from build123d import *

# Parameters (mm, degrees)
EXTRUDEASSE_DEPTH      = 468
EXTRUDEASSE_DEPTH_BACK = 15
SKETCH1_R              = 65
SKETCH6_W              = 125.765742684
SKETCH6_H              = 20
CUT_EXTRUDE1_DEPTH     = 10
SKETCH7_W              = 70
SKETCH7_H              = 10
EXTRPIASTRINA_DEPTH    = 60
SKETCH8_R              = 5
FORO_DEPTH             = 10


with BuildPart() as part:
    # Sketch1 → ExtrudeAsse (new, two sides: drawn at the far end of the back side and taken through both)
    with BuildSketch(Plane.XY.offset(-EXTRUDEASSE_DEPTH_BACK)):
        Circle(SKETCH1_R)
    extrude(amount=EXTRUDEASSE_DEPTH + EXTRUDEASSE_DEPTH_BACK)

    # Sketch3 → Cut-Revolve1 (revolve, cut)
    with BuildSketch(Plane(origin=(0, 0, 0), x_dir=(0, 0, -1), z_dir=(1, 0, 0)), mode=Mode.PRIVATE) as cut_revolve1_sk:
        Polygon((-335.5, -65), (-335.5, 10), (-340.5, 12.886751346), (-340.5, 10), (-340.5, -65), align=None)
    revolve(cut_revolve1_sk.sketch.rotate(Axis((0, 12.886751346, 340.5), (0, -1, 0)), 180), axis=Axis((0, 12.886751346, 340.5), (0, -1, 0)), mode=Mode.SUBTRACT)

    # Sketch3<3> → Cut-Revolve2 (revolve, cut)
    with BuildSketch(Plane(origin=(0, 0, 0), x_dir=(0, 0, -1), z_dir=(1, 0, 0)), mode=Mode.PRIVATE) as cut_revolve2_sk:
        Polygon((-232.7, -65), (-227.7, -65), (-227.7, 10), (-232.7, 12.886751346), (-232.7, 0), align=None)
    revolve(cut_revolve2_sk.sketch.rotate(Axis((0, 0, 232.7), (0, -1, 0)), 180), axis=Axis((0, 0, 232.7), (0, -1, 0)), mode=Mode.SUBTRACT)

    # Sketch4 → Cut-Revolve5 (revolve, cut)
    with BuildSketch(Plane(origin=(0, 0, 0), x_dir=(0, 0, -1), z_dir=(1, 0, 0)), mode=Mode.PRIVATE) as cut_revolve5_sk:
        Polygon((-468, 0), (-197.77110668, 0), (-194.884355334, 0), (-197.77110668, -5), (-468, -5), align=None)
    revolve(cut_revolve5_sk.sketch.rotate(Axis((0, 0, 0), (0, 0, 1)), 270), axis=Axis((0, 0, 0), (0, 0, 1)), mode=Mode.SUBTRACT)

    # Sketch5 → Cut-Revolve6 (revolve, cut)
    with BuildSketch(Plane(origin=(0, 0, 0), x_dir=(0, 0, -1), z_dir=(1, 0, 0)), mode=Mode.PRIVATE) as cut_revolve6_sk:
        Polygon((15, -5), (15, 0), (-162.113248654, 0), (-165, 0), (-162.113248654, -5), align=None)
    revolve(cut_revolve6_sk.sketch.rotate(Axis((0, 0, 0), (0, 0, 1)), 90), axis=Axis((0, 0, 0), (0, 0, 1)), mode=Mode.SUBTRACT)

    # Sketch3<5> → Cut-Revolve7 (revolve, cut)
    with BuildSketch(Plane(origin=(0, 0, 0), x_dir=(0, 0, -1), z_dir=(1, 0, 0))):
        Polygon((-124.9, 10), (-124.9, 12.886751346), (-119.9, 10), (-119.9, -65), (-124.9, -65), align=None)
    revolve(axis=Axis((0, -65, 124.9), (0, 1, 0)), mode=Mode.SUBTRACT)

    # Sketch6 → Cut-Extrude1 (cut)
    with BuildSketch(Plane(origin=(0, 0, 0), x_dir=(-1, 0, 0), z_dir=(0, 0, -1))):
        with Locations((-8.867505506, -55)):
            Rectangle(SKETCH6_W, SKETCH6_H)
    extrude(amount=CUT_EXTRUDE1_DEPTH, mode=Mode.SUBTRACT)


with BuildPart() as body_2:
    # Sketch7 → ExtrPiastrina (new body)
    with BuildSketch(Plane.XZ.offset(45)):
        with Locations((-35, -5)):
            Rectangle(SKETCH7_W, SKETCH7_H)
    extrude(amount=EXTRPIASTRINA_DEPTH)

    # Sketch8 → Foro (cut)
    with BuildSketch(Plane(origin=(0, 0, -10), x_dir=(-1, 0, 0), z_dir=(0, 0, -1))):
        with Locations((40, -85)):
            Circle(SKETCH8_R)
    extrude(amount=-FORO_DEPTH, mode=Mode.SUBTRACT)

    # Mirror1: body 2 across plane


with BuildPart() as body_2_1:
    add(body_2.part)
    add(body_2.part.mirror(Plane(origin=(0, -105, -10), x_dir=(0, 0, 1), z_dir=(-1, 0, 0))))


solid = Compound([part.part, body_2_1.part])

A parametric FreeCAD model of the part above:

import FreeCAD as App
import Part
import Sketcher
from FreeCAD import Vector
Q = App.Units.Quantity

doc = App.newDocument("Part")
body = doc.addObject("PartDesign::Body", "Body")

# Sketch on XY plane
sketch1 = doc.addObject("Sketcher::SketchObject", "Sketch")
body.addObject(sketch1)
sketch1.AttachmentSupport = (doc.XY_Plane, [""])
sketch1.MapMode = "FlatFace"
sketch1.addGeometry(Part.Circle(Vector(0, 0, 0), Vector(0, 0, 1), 65), False)
sketch1.addConstraint([
    Sketcher.Constraint("Coincident", 0, 3, -1, 1),
    Sketcher.Constraint("Diameter", 0, Q("130 mm")),
])
pad1 = doc.addObject("PartDesign::Pad", "Pad")
body.addObject(pad1)
pad1.Profile = sketch1
pad1.Type = "TwoLengths"
pad1.Length = 468
pad1.Length2 = 15

# Sketch on YZ plane
sketch2 = doc.addObject("Sketcher::SketchObject", "Sketch001")
body.addObject(sketch2)
sketch2.AttachmentSupport = (doc.YZ_Plane, [""])
sketch2.MapMode = "FlatFace"
sketch2.addGeometry([
    Part.LineSegment(Vector(-65, 336, 0), Vector(10, 336, 0)),
    Part.LineSegment(Vector(10, 336, 0), Vector(13, 340, 0)),
    Part.LineSegment(Vector(13, 340, 0), Vector(-65, 340, 0)),
    Part.LineSegment(Vector(-65, 340, 0), Vector(-65, 336, 0)),
], False)
sketch2.addGeometry(Part.LineSegment(Vector(13, 340, 0), Vector(-65, 340, 0)), True)  # axis
sketch2.addConstraint([
    Sketcher.Constraint("Coincident", 0, 2, 1, 1),
    Sketcher.Constraint("Coincident", 1, 2, 2, 1),
    Sketcher.Constraint("Coincident", 2, 2, 3, 1),
    Sketcher.Constraint("Coincident", 3, 2, 0, 1),
    Sketcher.Constraint("Horizontal", 0),
    Sketcher.Constraint("Horizontal", 2),
    Sketcher.Constraint("Vertical", 3),
    Sketcher.Constraint("Horizontal", 4),
    Sketcher.Constraint("Coincident", 4, 1, 1, 2),
    Sketcher.Constraint("Vertical", 3, 2, 4, 2),
    Sketcher.Constraint("DistanceX", 0, 1, 0, 2, Q("75 mm")),
    Sketcher.Constraint("DistanceY", 3, 2, 3, 1, Q("5 mm")),
    Sketcher.Constraint("Angle", 1, Q("60 deg")),
    Sketcher.Constraint("DistanceX", -1, 1, 0, 2, Q("10 mm")),
    Sketcher.Constraint("DistanceY", -1, 1, 0, 2, Q("335.5 mm")),
])
groove = doc.addObject("PartDesign::Groove", "Groove")
body.addObject(groove)
groove.Profile = sketch2
groove.ReferenceAxis = (sketch2, ["Axis0"])
groove.Angle = 360

# Sketch on YZ plane
sketch3 = doc.addObject("Sketcher::SketchObject", "Sketch002")
body.addObject(sketch3)
sketch3.AttachmentSupport = (doc.YZ_Plane, [""])
sketch3.MapMode = "FlatFace"
sketch3.addGeometry([
    Part.LineSegment(Vector(-65, 233, 0), Vector(-65, 228, 0)),
    Part.LineSegment(Vector(-65, 228, 0), Vector(10, 228, 0)),
    Part.LineSegment(Vector(10, 228, 0), Vector(13, 233, 0)),
    Part.LineSegment(Vector(13, 233, 0), Vector(-65, 233, 0)),
], False)
sketch3.addGeometry(Part.LineSegment(Vector(13, 233, 0), Vector(-65, 233, 0)), True)  # axis
sketch3.addConstraint([
    Sketcher.Constraint("Coincident", 0, 2, 1, 1),
    Sketcher.Constraint("Coincident", 1, 2, 2, 1),
    Sketcher.Constraint("Coincident", 2, 2, 3, 1),
    Sketcher.Constraint("Coincident", 3, 2, 0, 1),
    Sketcher.Constraint("Vertical", 0),
    Sketcher.Constraint("Horizontal", 1),
    Sketcher.Constraint("Horizontal", 3),
    Sketcher.Constraint("Horizontal", 4),
    Sketcher.Constraint("Coincident", 4, 1, 2, 2),
    Sketcher.Constraint("Vertical", 0, 2, 4, 2),
    Sketcher.Constraint("DistanceX", 1, 1, 1, 2, Q("75 mm")),
    Sketcher.Constraint("DistanceY", 0, 2, 0, 1, Q("5 mm")),
    Sketcher.Constraint("Angle", 2, Q("60 deg")),
    Sketcher.Constraint("DistanceX", 0, 2, -1, 1, Q("65 mm")),
    Sketcher.Constraint("DistanceY", -1, 1, 0, 2, Q("227.7 mm")),
])
groove2 = doc.addObject("PartDesign::Groove", "Groove001")
body.addObject(groove2)
groove2.Profile = sketch3
groove2.ReferenceAxis = (sketch3, ["Axis0"])
groove2.Angle = 360

# Sketch on YZ plane
sketch4 = doc.addObject("Sketcher::SketchObject", "Sketch003")
body.addObject(sketch4)
sketch4.AttachmentSupport = (doc.YZ_Plane, [""])
sketch4.MapMode = "FlatFace"
sketch4.addGeometry([
    Part.LineSegment(Vector(0, 195, 0), Vector(0, 468, 0)),
    Part.LineSegment(Vector(0, 468, 0), Vector(-5, 468, 0)),
    Part.LineSegment(Vector(-5, 468, 0), Vector(-5, 198, 0)),
    Part.LineSegment(Vector(-5, 198, 0), Vector(0, 195, 0)),
], False)
sketch4.addConstraint([
    Sketcher.Constraint("Coincident", 0, 2, 1, 1),
    Sketcher.Constraint("Coincident", 1, 2, 2, 1),
    Sketcher.Constraint("Coincident", 2, 2, 3, 1),
    Sketcher.Constraint("Coincident", 3, 2, 0, 1),
    Sketcher.Constraint("Vertical", 0),
    Sketcher.Constraint("Horizontal", 1),
    Sketcher.Constraint("Vertical", 2),
    Sketcher.Constraint("PointOnObject", 0, 2, -2),
    Sketcher.Constraint("DistanceX", 1, 2, 1, 1, Q("5 mm")),
    Sketcher.Constraint("Angle", 3, Q("-30 deg")),
    Sketcher.Constraint("DistanceY", -1, 1, 0, 2, Q("468 mm")),
    Sketcher.Constraint("DistanceY", 0, 1, 0, 2, Q("273.115645 mm")),
])
groove3 = doc.addObject("PartDesign::Groove", "Groove002")
body.addObject(groove3)
groove3.Profile = sketch4
groove3.ReferenceAxis = (sketch4, ["V_Axis"])
groove3.Angle = 360

# Sketch on YZ plane
sketch5 = doc.addObject("Sketcher::SketchObject", "Sketch004")
body.addObject(sketch5)
sketch5.AttachmentSupport = (doc.YZ_Plane, [""])
sketch5.MapMode = "FlatFace"
sketch5.addGeometry([
    Part.LineSegment(Vector(-5, -15, 0), Vector(0, -15, 0)),
    Part.LineSegment(Vector(0, -15, 0), Vector(0, 165, 0)),
    Part.LineSegment(Vector(0, 165, 0), Vector(-5, 162, 0)),
    Part.LineSegment(Vector(-5, 162, 0), Vector(-5, -15, 0)),
], False)
sketch5.addConstraint([
    Sketcher.Constraint("Coincident", 0, 2, 1, 1),
    Sketcher.Constraint("Coincident", 1, 2, 2, 1),
    Sketcher.Constraint("Coincident", 2, 2, 3, 1),
    Sketcher.Constraint("Coincident", 3, 2, 0, 1),
    Sketcher.Constraint("Horizontal", 0),
    Sketcher.Constraint("Vertical", 1),
    Sketcher.Constraint("Vertical", 3),
    Sketcher.Constraint("PointOnObject", 0, 2, -2),
    Sketcher.Constraint("DistanceX", 0, 1, 0, 2, Q("5 mm")),
    Sketcher.Constraint("DistanceY", 1, 1, 1, 2, Q("180 mm")),
    Sketcher.Constraint("Angle", 2, Q("-150 deg")),
    Sketcher.Constraint("DistanceY", 0, 2, -1, 1, Q("15 mm")),
])
groove4 = doc.addObject("PartDesign::Groove", "Groove003")
body.addObject(groove4)
groove4.Profile = sketch5
groove4.ReferenceAxis = (sketch5, ["V_Axis"])
groove4.Angle = 360

# Sketch on YZ plane
sketch6 = doc.addObject("Sketcher::SketchObject", "Sketch005")
body.addObject(sketch6)
sketch6.AttachmentSupport = (doc.YZ_Plane, [""])
sketch6.MapMode = "FlatFace"
sketch6.addGeometry([
    Part.LineSegment(Vector(13, 125, 0), Vector(-65, 125, 0)),
    Part.LineSegment(Vector(-65, 125, 0), Vector(-65, 120, 0)),
    Part.LineSegment(Vector(-65, 120, 0), Vector(10, 120, 0)),
    Part.LineSegment(Vector(10, 120, 0), Vector(13, 125, 0)),
], False)
sketch6.addGeometry(Part.LineSegment(Vector(-65, 125, 0), Vector(13, 125, 0)), True)  # axis
sketch6.addConstraint([
    Sketcher.Constraint("Coincident", 0, 2, 1, 1),
    Sketcher.Constraint("Coincident", 1, 2, 2, 1),
    Sketcher.Constraint("Coincident", 2, 2, 3, 1),
    Sketcher.Constraint("Coincident", 3, 2, 0, 1),
    Sketcher.Constraint("Horizontal", 0),
    Sketcher.Constraint("Vertical", 1),
    Sketcher.Constraint("Horizontal", 2),
    Sketcher.Constraint("Horizontal", 4),
    Sketcher.Constraint("Coincident", 4, 1, 0, 2),
    Sketcher.Constraint("Equal", 0, 4),
    Sketcher.Constraint("DistanceX", 2, 1, 2, 2, Q("75 mm")),
    Sketcher.Constraint("DistanceY", 1, 2, 1, 1, Q("5 mm")),
    Sketcher.Constraint("Angle", 3, Q("60 deg")),
    Sketcher.Constraint("DistanceX", 0, 2, -1, 1, Q("65 mm")),
    Sketcher.Constraint("DistanceY", -1, 1, 0, 2, Q("124.9 mm")),
])
groove5 = doc.addObject("PartDesign::Groove", "Groove004")
body.addObject(groove5)
groove5.Profile = sketch6
groove5.ReferenceAxis = (sketch6, ["Axis0"])
groove5.Angle = 360

# Sketch on XY plane
sketch7 = doc.addObject("Sketcher::SketchObject", "Sketch006")
body.addObject(sketch7)
sketch7.AttachmentSupport = (doc.XY_Plane, [""])
sketch7.MapMode = "FlatFace"
sketch7.addGeometry([
    Part.LineSegment(Vector(72, -45, 0), Vector(72, -65, 0)),
    Part.LineSegment(Vector(72, -65, 0), Vector(-54, -65, 0)),
    Part.LineSegment(Vector(-54, -65, 0), Vector(-54, -45, 0)),
    Part.LineSegment(Vector(-54, -45, 0), Vector(72, -45, 0)),
], False)
sketch7.addConstraint([
    Sketcher.Constraint("Coincident", 0, 2, 1, 1),
    Sketcher.Constraint("Coincident", 1, 2, 2, 1),
    Sketcher.Constraint("Coincident", 2, 2, 3, 1),
    Sketcher.Constraint("Coincident", 3, 2, 0, 1),
    Sketcher.Constraint("Vertical", 0),
    Sketcher.Constraint("Horizontal", 1),
    Sketcher.Constraint("Vertical", 2),
    Sketcher.Constraint("Horizontal", 3),
    Sketcher.Constraint("DistanceY", 0, 2, 0, 1, Q("20 mm")),
    Sketcher.Constraint("DistanceY", 0, 2, -1, 1, Q("65 mm")),
    Sketcher.Constraint("DistanceX", 1, 2, 1, 1, Q("125.765743 mm")),
    Sketcher.Constraint("DistanceX", -1, 1, 0, 2, Q("71.750377 mm")),
])
pocket1 = doc.addObject("PartDesign::Pocket", "Pocket")
body.addObject(pocket1)
pocket1.Profile = sketch7
pocket1.Length = 10
body2 = doc.addObject("PartDesign::Body", "Body001")

# Sketch on XZ plane
sketch8 = doc.addObject("Sketcher::SketchObject", "Sketch007")
body2.addObject(sketch8)
sketch8.AttachmentSupport = (doc.getObject("XZ_Plane001"), [""])
sketch8.MapMode = "FlatFace"
sketch8.AttachmentOffset = App.Placement(Vector(0, 0, 45), App.Rotation())
sketch8.addGeometry([
    Part.LineSegment(Vector(-70, 0, 0), Vector(-70, -10, 0)),
    Part.LineSegment(Vector(-70, -10, 0), Vector(0, -10, 0)),
    Part.LineSegment(Vector(0, -10, 0), Vector(0, 0, 0)),
    Part.LineSegment(Vector(0, 0, 0), Vector(-70, 0, 0)),
], False)
sketch8.addConstraint([
    Sketcher.Constraint("Coincident", 0, 2, 1, 1),
    Sketcher.Constraint("Coincident", 1, 2, 2, 1),
    Sketcher.Constraint("Coincident", 2, 2, 3, 1),
    Sketcher.Constraint("Coincident", 3, 2, 0, 1),
    Sketcher.Constraint("Vertical", 0),
    Sketcher.Constraint("Horizontal", 1),
    Sketcher.Constraint("Vertical", 2),
    Sketcher.Constraint("Horizontal", 3),
    Sketcher.Constraint("Coincident", 2, 2, -1, 1),
    Sketcher.Constraint("DistanceX", 1, 1, 1, 2, Q("70 mm")),
    Sketcher.Constraint("DistanceY", 0, 2, 0, 1, Q("10 mm")),
])
pad2 = doc.addObject("PartDesign::Pad", "Pad001")
body2.addObject(pad2)
pad2.Profile = sketch8
pad2.Length = 60

# Sketch on XY plane
sketch9 = doc.addObject("Sketcher::SketchObject", "Sketch008")
body2.addObject(sketch9)
sketch9.AttachmentSupport = (doc.getObject("XY_Plane001"), [""])
sketch9.MapMode = "FlatFace"
sketch9.AttachmentOffset = App.Placement(Vector(0, 0, -10), App.Rotation())
sketch9.addGeometry(Part.Circle(Vector(-40, -85, 0), Vector(0, 0, 1), 5), False)
sketch9.addConstraint([
    Sketcher.Constraint("Diameter", 0, Q("10 mm")),
    Sketcher.Constraint("DistanceX", 0, 3, -1, 1, Q("40 mm")),
    Sketcher.Constraint("DistanceY", 0, 3, -1, 1, Q("85 mm")),
])
pocket2 = doc.addObject("PartDesign::Pocket", "Pocket001")
body2.addObject(pocket2)
pocket2.Profile = sketch9
pocket2.Length = 10
pocket2.Reversed = True
body3 = doc.addObject("PartDesign::Body", "Body002")
doc.recompute()

body3.BaseFeature = body2
doc.recompute()

mirroring = doc.addObject("Part::Mirroring", "Mirroring")
mirroring.Source = body2
mirroring.Base = Vector(0, -105, -10)
mirroring.Normal = Vector(-1, 0, 0)
body4 = doc.addObject("PartDesign::Body", "Body003")
body4.BaseFeature = mirroring
boolean = doc.addObject("PartDesign::Boolean", "Boolean")
body3.addObject(boolean)
boolean.Type = "Fuse"
boolean.addObjects([body4])
doc.recompute()
mirroring.Visibility = False

doc.recompute()
